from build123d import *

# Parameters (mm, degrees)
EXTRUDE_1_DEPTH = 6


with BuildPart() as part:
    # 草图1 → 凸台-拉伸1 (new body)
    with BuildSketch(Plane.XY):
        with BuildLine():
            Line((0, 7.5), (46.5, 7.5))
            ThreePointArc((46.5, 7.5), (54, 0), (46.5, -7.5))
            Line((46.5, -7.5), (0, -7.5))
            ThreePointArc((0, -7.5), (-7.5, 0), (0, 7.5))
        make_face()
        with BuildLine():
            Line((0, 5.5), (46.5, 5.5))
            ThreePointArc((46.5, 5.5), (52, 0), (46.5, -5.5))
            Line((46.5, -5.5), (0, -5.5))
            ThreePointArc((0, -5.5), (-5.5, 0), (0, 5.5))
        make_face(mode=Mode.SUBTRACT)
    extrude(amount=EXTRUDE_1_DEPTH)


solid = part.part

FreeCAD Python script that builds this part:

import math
import FreeCAD as App
import Part
import Sketcher

doc = App.newDocument("Part")
body = doc.addObject("PartDesign::Body", "Body")

# Sketch on XY plane
sketch1 = body.newObject("Sketcher::SketchObject", "Sketch")
sketch1.AttachmentSupport = (doc.getObject("XY_Plane"), [""])
sketch1.MapMode = "FlatFace"
sketch1.addGeometry(Part.LineSegment(App.Vector(46, 8, 0), App.Vector(0, 8, 0)), False)
sketch1.addGeometry(Part.ArcOfCircle(Part.Circle(App.Vector(0, 0, 0), App.Vector(0, 0, 1), 8), math.radians(90), math.radians(270)), False)
sketch1.addGeometry(Part.LineSegment(App.Vector(0, -8, 0), App.Vector(46, -8, 0)), False)
sketch1.addGeometry(Part.ArcOfCircle(Part.Circle(App.Vector(46, 0, 0), App.Vector(0, 0, 1), 8), math.radians(-90), math.radians(90)), False)
sketch1.addGeometry(Part.LineSegment(App.Vector(0, 6, 0), App.Vector(46, 6, 0)), False)
sketch1.addGeometry(Part.ArcOfCircle(Part.Circle(App.Vector(46, 0, 0), App.Vector(0, 0, 1), 6), math.radians(-90), math.radians(90)), False)
sketch1.addGeometry(Part.LineSegment(App.Vector(46, -6, 0), App.Vector(0, -6, 0)), False)
sketch1.addGeometry(Part.ArcOfCircle(Part.Circle(App.Vector(0, 0, 0), App.Vector(0, 0, 1), 6), math.radians(90), math.radians(270)), False)
sketch1.addConstraint(Sketcher.Constraint("Tangent", 0, 2, 1, 1))
sketch1.addConstraint(Sketcher.Constraint("Tangent", 1, 2, 2, 1))
sketch1.addConstraint(Sketcher.Constraint("Tangent", 2, 2, 3, 1))
sketch1.addConstraint(Sketcher.Constraint("Tangent", 3, 2, 0, 1))
sketch1.addConstraint(Sketcher.Constraint("Tangent", 4, 2, 5, 2))
sketch1.addConstraint(Sketcher.Constraint("Tangent", 5, 1, 6, 1))
sketch1.addConstraint(Sketcher.Constraint("Tangent", 6, 2, 7, 2))
sketch1.addConstraint(Sketcher.Constraint("Tangent", 7, 1, 4, 1))
sketch1.addConstraint(Sketcher.Constraint("Horizontal", 0))
sketch1.addConstraint(Sketcher.Constraint("Horizontal", 2))
sketch1.addConstraint(Sketcher.Constraint("Horizontal", 4))
sketch1.addConstraint(Sketcher.Constraint("Horizontal", 6))
sketch1.addConstraint(Sketcher.Constraint("Coincident", 1, 3, -1, 1))
sketch1.addConstraint(Sketcher.Constraint("Coincident", 7, 3, -1, 1))
sketch1.addConstraint(Sketcher.Constraint("Vertical", 5, 3, 2, 2))
sketch1.addConstraint(Sketcher.Constraint("Radius", 1, 7.5))
sketch1.addConstraint(Sketcher.Constraint("Radius", 5, 5.5))
sketch1.addConstraint(Sketcher.Constraint("DistanceX", 0, 2, 0, 1, 46.5))
pad1 = body.newObject("PartDesign::Pad", "Pad")
pad1.Profile = sketch1
pad1.Length = 6

doc.recompute()
